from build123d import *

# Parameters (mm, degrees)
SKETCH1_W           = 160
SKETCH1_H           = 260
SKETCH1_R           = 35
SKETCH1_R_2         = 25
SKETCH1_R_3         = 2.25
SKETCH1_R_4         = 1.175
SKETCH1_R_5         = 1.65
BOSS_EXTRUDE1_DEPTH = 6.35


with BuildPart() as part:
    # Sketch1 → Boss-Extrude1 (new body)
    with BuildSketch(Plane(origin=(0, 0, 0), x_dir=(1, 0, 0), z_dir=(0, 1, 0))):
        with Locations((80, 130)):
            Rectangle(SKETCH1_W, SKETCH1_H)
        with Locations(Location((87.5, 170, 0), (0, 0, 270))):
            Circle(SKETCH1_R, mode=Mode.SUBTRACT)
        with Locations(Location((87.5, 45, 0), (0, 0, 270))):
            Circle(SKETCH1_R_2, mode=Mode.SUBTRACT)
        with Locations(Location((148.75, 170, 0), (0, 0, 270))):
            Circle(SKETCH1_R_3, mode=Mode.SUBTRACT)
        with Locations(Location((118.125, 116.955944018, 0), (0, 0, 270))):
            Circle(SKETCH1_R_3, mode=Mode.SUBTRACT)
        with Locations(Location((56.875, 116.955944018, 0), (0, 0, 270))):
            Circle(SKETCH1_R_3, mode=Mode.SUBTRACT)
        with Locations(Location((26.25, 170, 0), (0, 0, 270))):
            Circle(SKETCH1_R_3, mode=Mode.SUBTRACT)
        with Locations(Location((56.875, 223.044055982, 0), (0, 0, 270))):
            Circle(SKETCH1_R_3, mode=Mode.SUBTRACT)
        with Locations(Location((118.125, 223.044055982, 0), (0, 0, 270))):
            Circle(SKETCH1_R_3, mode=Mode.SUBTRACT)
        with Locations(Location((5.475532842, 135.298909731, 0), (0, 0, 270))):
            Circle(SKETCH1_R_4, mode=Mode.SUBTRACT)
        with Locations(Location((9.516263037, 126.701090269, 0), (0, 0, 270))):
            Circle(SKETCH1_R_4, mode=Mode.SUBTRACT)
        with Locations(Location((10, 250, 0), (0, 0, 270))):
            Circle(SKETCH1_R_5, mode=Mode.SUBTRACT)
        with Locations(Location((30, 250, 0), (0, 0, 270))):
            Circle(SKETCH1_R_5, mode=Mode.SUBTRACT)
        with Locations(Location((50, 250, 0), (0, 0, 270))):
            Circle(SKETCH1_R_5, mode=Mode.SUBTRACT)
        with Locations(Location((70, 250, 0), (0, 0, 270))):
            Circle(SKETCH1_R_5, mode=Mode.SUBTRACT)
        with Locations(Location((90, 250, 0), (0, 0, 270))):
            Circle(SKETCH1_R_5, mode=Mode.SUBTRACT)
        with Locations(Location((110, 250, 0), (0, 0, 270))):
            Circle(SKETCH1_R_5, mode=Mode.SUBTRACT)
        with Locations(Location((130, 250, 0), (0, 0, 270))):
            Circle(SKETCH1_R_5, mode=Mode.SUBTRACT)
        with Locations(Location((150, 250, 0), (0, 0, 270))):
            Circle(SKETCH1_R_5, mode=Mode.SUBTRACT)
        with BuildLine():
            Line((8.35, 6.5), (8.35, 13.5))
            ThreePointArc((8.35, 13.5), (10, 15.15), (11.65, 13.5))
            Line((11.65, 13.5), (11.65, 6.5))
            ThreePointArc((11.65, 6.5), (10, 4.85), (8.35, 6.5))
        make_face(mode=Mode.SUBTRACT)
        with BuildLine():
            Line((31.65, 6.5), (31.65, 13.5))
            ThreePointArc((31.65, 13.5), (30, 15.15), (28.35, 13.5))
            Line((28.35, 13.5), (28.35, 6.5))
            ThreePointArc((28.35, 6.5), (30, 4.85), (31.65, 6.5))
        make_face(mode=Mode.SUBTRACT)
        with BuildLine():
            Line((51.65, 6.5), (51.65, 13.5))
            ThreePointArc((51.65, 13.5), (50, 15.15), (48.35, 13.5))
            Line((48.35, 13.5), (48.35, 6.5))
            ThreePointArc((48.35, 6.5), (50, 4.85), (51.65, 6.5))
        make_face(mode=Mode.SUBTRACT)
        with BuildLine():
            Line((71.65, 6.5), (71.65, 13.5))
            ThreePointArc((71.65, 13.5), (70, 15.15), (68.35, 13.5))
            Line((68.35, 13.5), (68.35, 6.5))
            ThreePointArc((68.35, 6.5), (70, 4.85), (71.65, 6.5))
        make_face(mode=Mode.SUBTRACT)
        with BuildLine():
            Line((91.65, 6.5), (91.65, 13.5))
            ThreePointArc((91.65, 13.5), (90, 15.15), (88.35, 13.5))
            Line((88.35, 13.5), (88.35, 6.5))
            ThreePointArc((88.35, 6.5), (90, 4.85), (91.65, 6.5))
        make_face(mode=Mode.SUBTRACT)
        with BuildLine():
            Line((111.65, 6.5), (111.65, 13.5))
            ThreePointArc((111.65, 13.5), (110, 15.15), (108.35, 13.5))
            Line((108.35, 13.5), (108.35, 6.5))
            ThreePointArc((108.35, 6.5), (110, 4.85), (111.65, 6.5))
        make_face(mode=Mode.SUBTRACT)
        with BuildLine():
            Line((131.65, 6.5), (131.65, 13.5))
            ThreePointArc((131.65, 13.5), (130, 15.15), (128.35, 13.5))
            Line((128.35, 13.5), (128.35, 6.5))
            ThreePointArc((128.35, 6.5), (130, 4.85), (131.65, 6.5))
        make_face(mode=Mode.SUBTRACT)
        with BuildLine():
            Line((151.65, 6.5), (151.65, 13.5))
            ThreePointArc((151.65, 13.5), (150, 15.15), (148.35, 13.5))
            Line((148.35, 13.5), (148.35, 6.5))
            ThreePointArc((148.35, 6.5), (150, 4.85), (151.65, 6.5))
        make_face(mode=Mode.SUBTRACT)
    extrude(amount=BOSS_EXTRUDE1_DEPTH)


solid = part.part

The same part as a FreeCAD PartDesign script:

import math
import FreeCAD as App
import Part
import Sketcher
from FreeCAD import Vector
Q = App.Units.Quantity

doc = App.newDocument("Part")
body = doc.addObject("PartDesign::Body", "Body")

# Sketch on XZ plane
sketch1 = body.newObject("Sketcher::SketchObject", "Sketch")
sketch1.AttachmentSupport = (doc.getObject("XZ_Plane"), [""])
sketch1.MapMode = "FlatFace"
sketch1.addGeometry([
    Part.LineSegment(Vector(0, -260, 0), Vector(0, 0, 0)),  # 0
    Part.LineSegment(Vector(0, 0, 0), Vector(160, 0, 0)),  # 1
    Part.LineSegment(Vector(160, 0, 0), Vector(160, -260, 0)),  # 2
    Part.LineSegment(Vector(160, -260, 0), Vector(0, -260, 0)),  # 3
    Part.ArcOfCircle(Part.Circle(Vector(10, -6.5, 0), Vector(0, 0, 1), 1.6), math.radians(0), math.radians(180)),  # 4
    Part.LineSegment(Vector(8.3, -6.5, 0), Vector(8.3, -13.5, 0)),  # 5
    Part.ArcOfCircle(Part.Circle(Vector(10, -13.5, 0), Vector(0, 0, 1), 1.6), math.radians(180), math.radians(360)),  # 6
    Part.LineSegment(Vector(11.7, -13.5, 0), Vector(11.7, -6.5, 0)),  # 7
    Part.LineSegment(Vector(31.6, -13.5, 0), Vector(31.6, -6.5, 0)),  # 8
    Part.ArcOfCircle(Part.Circle(Vector(30, -6.5, 0), Vector(0, 0, 1), 1.6), math.radians(0), math.radians(180)),  # 9
    Part.LineSegment(Vector(28.4, -6.5, 0), Vector(28.4, -13.5, 0)),  # 10
    Part.ArcOfCircle(Part.Circle(Vector(30, -13.5, 0), Vector(0, 0, 1), 1.6), math.radians(180), math.radians(360)),  # 11
    Part.LineSegment(Vector(51.6, -13.5, 0), Vector(51.6, -6.5, 0)),  # 12
    Part.ArcOfCircle(Part.Circle(Vector(50, -6.5, 0), Vector(0, 0, 1), 1.6), math.radians(0), math.radians(180)),  # 13
    Part.LineSegment(Vector(48.4, -6.5, 0), Vector(48.4, -13.5, 0)),  # 14
    Part.ArcOfCircle(Part.Circle(Vector(50, -13.5, 0), Vector(0, 0, 1), 1.6), math.radians(180), math.radians(360)),  # 15
    Part.LineSegment(Vector(71.7, -13.5, 0), Vector(71.7, -6.5, 0)),  # 16
    Part.ArcOfCircle(Part.Circle(Vector(70, -6.5, 0), Vector(0, 0, 1), 1.6), math.radians(0), math.radians(180)),  # 17
    Part.LineSegment(Vector(68.3, -6.5, 0), Vector(68.3, -13.5, 0)),  # 18
    Part.ArcOfCircle(Part.Circle(Vector(70, -13.5, 0), Vector(0, 0, 1), 1.6), math.radians(180), math.radians(360)),  # 19
    Part.Circle(Vector(9.5, -126.7, 0), Vector(0, 0, 1), 1.2),  # 20
    Part.Circle(Vector(56.9, -117, 0), Vector(0, 0, 1), 2.2),  # 21
    Part.LineSegment(Vector(91.7, -13.5, 0), Vector(91.7, -6.5, 0)),  # 22
    Part.ArcOfCircle(Part.Circle(Vector(90, -6.5, 0), Vector(0, 0, 1), 1.6), math.radians(0), math.radians(180)),  # 23
    Part.LineSegment(Vector(88.3, -6.5, 0), Vector(88.3, -13.5, 0)),  # 24
    Part.ArcOfCircle(Part.Circle(Vector(90, -13.5, 0), Vector(0, 0, 1), 1.6), math.radians(180), math.radians(360)),  # 25
    Part.LineSegment(Vector(111.7, -13.5, 0), Vector(111.7, -6.5, 0)),  # 26
    Part.ArcOfCircle(Part.Circle(Vector(110, -6.5, 0), Vector(0, 0, 1), 1.6), math.radians(0), math.radians(180)),  # 27
    Part.LineSegment(Vector(108.3, -6.5, 0), Vector(108.3, -13.5, 0)),  # 28
    Part.ArcOfCircle(Part.Circle(Vector(110, -13.5, 0), Vector(0, 0, 1), 1.6), math.radians(180), math.radians(360)),  # 29
    Part.Circle(Vector(87.5, -45, 0), Vector(0, 0, 1), 25),  # 30
    Part.LineSegment(Vector(131.7, -13.5, 0), Vector(131.7, -6.5, 0)),  # 31
    Part.ArcOfCircle(Part.Circle(Vector(130, -6.5, 0), Vector(0, 0, 1), 1.6), math.radians(0), math.radians(180)),  # 32
    Part.LineSegment(Vector(128.3, -6.5, 0), Vector(128.3, -13.5, 0)),  # 33
    Part.ArcOfCircle(Part.Circle(Vector(130, -13.5, 0), Vector(0, 0, 1), 1.6), math.radians(180), math.radians(360)),  # 34
    Part.LineSegment(Vector(151.7, -13.5, 0), Vector(151.7, -6.5, 0)),  # 35
    Part.ArcOfCircle(Part.Circle(Vector(150, -6.5, 0), Vector(0, 0, 1), 1.6), math.radians(0), math.radians(180)),  # 36
    Part.LineSegment(Vector(148.3, -6.5, 0), Vector(148.3, -13.5, 0)),  # 37
    Part.ArcOfCircle(Part.Circle(Vector(150, -13.5, 0), Vector(0, 0, 1), 1.6), math.radians(180), math.radians(360)),  # 38
    Part.Circle(Vector(118.1, -117, 0), Vector(0, 0, 1), 2.2),  # 39
    Part.Circle(Vector(5.5, -135.3, 0), Vector(0, 0, 1), 1.2),  # 40
    Part.Circle(Vector(26.2, -170, 0), Vector(0, 0, 1), 2.2),  # 41
    Part.Circle(Vector(10, -250, 0), Vector(0, 0, 1), 1.6),  # 42
    Part.Circle(Vector(30, -250, 0), Vector(0, 0, 1), 1.6),  # 43
    Part.Circle(Vector(56.9, -223, 0), Vector(0, 0, 1), 2.2),  # 44
    Part.Circle(Vector(50, -250, 0), Vector(0, 0, 1), 1.6),  # 45
    Part.Circle(Vector(70, -250, 0), Vector(0, 0, 1), 1.6),  # 46
    Part.Circle(Vector(87.5, -170, 0), Vector(0, 0, 1), 35),  # 47
    Part.Circle(Vector(148.8, -170, 0), Vector(0, 0, 1), 2.2),  # 48
    Part.Circle(Vector(90, -250, 0), Vector(0, 0, 1), 1.6),  # 49
    Part.Circle(Vector(110, -250, 0), Vector(0, 0, 1), 1.6),  # 50
    Part.Circle(Vector(118.1, -223, 0), Vector(0, 0, 1), 2.2),  # 51
    Part.Circle(Vector(130, -250, 0), Vector(0, 0, 1), 1.6),  # 52
    Part.Circle(Vector(150, -250, 0), Vector(0, 0, 1), 1.6),  # 53
], False)
sketch1.addConstraint([
    Sketcher.Constraint("Coincident", 0, 2, 1, 1),
    Sketcher.Constraint("Coincident", 1, 2, 2, 1),
    Sketcher.Constraint("Coincident", 2, 2, 3, 1),
    Sketcher.Constraint("Coincident", 3, 2, 0, 1),
    Sketcher.Constraint("Tangent", 4, 2, 5, 1),
    Sketcher.Constraint("Tangent", 5, 2, 6, 1),
    Sketcher.Constraint("Tangent", 6, 2, 7, 1),
    Sketcher.Constraint("Tangent", 7, 2, 4, 1),
    Sketcher.Constraint("Tangent", 8, 2, 9, 1),
    Sketcher.Constraint("Tangent", 9, 2, 10, 1),
    Sketcher.Constraint("Tangent", 10, 2, 11, 1),
    Sketcher.Constraint("Tangent", 11, 2, 8, 1),
    Sketcher.Constraint("Tangent", 12, 2, 13, 1),
    Sketcher.Constraint("Tangent", 13, 2, 14, 1),
    Sketcher.Constraint("Tangent", 14, 2, 15, 1),
    Sketcher.Constraint("Tangent", 15, 2, 12, 1),
    Sketcher.Constraint("Tangent", 16, 2, 17, 1),
    Sketcher.Constraint("Tangent", 17, 2, 18, 1),
    Sketcher.Constraint("Tangent", 18, 2, 19, 1),
    Sketcher.Constraint("Tangent", 19, 2, 16, 1),
    Sketcher.Constraint("Tangent", 22, 2, 23, 1),
    Sketcher.Constraint("Tangent", 23, 2, 24, 1),
    Sketcher.Constraint("Tangent", 24, 2, 25, 1),
    Sketcher.Constraint("Tangent", 25, 2, 22, 1),
    Sketcher.Constraint("Tangent", 26, 2, 27, 1),
    Sketcher.Constraint("Tangent", 27, 2, 28, 1),
    Sketcher.Constraint("Tangent", 28, 2, 29, 1),
    Sketcher.Constraint("Tangent", 29, 2, 26, 1),
    Sketcher.Constraint("Tangent", 31, 2, 32, 1),
    Sketcher.Constraint("Tangent", 32, 2, 33, 1),
    Sketcher.Constraint("Tangent", 33, 2, 34, 1),
    Sketcher.Constraint("Tangent", 34, 2, 31, 1),
    Sketcher.Constraint("Tangent", 35, 2, 36, 1),
    Sketcher.Constraint("Tangent", 36, 2, 37, 1),
    Sketcher.Constraint("Tangent", 37, 2, 38, 1),
    Sketcher.Constraint("Tangent", 38, 2, 35, 1),
    Sketcher.Constraint("Vertical", 0),
    Sketcher.Constraint("Horizontal", 1),
    Sketcher.Constraint("Vertical", 2),
    Sketcher.Constraint("Horizontal", 3),
    Sketcher.Constraint("Vertical", 5),
    Sketcher.Constraint("Vertical", 7),
    Sketcher.Constraint("Vertical", 8),
    Sketcher.Constraint("Vertical", 10),
    Sketcher.Constraint("Vertical", 12),
    Sketcher.Constraint("Vertical", 14),
    Sketcher.Constraint("Vertical", 16),
    Sketcher.Constraint("Vertical", 18),
    Sketcher.Constraint("Vertical", 22),
    Sketcher.Constraint("Vertical", 24),
    Sketcher.Constraint("Vertical", 26),
    Sketcher.Constraint("Vertical", 28),
    Sketcher.Constraint("Vertical", 31),
    Sketcher.Constraint("Vertical", 33),
    Sketcher.Constraint("Vertical", 35),
    Sketcher.Constraint("Vertical", 37),
    Sketcher.Constraint("Coincident", 0, 2, -1, 1),
    Sketcher.Constraint("Equal", 6, 9),
    Sketcher.Constraint("Equal", 11, 13),
    Sketcher.Constraint("Equal", 15, 17),
    Sketcher.Constraint("Equal", 19, 23),
    Sketcher.Constraint("Equal", 25, 27),
    Sketcher.Constraint("Equal", 29, 32),
    Sketcher.Constraint("Equal", 34, 36),
    Sketcher.Constraint("Equal", 21, 39),
    Sketcher.Constraint("Equal", 20, 40),
    Sketcher.Constraint("Equal", 39, 41),
    Sketcher.Constraint("Equal", 38, 42),
    Sketcher.Constraint("Equal", 42, 43),
    Sketcher.Constraint("Equal", 41, 44),
    Sketcher.Constraint("Equal", 43, 45),
    Sketcher.Constraint("Equal", 45, 46),
    Sketcher.Constraint("Equal", 44, 48),
    Sketcher.Constraint("Equal", 46, 49),
    Sketcher.Constraint("Equal", 49, 50),
    Sketcher.Constraint("Equal", 48, 51),
    Sketcher.Constraint("Equal", 50, 52),
    Sketcher.Constraint("Equal", 52, 53),
    Sketcher.Constraint("Horizontal", 4, 3, 9, 3),
    Sketcher.Constraint("Horizontal", 6, 3, 11, 3),
    Sketcher.Constraint("Horizontal", 9, 3, 13, 3),
    Sketcher.Constraint("Horizontal", 11, 3, 15, 3),
    Sketcher.Constraint("Horizontal", 13, 3, 17, 3),
    Sketcher.Constraint("Horizontal", 15, 3, 19, 3),
    Sketcher.Constraint("Horizontal", 17, 3, 23, 3),
    Sketcher.Constraint("Horizontal", 19, 3, 25, 3),
    Sketcher.Constraint("Horizontal", 23, 3, 27, 3),
    Sketcher.Constraint("Horizontal", 25, 3, 29, 3),
    Sketcher.Constraint("Horizontal", 27, 3, 32, 3),
    Sketcher.Constraint("Horizontal", 29, 3, 34, 3),
    Sketcher.Constraint("Horizontal", 32, 3, 36, 3),
    Sketcher.Constraint("Horizontal", 34, 3, 38, 3),
    Sketcher.Constraint("Horizontal", 21, 3, 39, 3),
    Sketcher.Constraint("Horizontal", 42, 3, 43, 3),
    Sketcher.Constraint("Horizontal", 43, 3, 45, 3),
    Sketcher.Constraint("Horizontal", 45, 3, 46, 3),
    Sketcher.Constraint("Horizontal", 41, 3, 47, 3),
    Sketcher.Constraint("Horizontal", 47, 3, 48, 3),
    Sketcher.Constraint("Horizontal", 46, 3, 49, 3),
    Sketcher.Constraint("Horizontal", 49, 3, 50, 3),
    Sketcher.Constraint("Horizontal", 44, 3, 51, 3),
    Sketcher.Constraint("Horizontal", 50, 3, 52, 3),
    Sketcher.Constraint("Horizontal", 52, 3, 53, 3),
    Sketcher.Constraint("Vertical", 6, 3, 42, 3),
    Sketcher.Constraint("Vertical", 11, 3, 43, 3),
    Sketcher.Constraint("Vertical", 21, 3, 44, 3),
    Sketcher.Constraint("Vertical", 15, 3, 45, 3),
    Sketcher.Constraint("Vertical", 19, 3, 46, 3),
    Sketcher.Constraint("Vertical", 30, 3, 47, 3),
    Sketcher.Constraint("Vertical", 25, 3, 49, 3),
    Sketcher.Constraint("Vertical", 29, 3, 50, 3),
    Sketcher.Constraint("Vertical", 39, 3, 51, 3),
    Sketcher.Constraint("Vertical", 34, 3, 52, 3),
    Sketcher.Constraint("Vertical", 38, 3, 53, 3),
    Sketcher.Constraint("Diameter", 30, Q("50 mm")),
    Sketcher.Constraint("Diameter", 47, Q("70 mm")),
    Sketcher.Constraint("Diameter", 21, Q("4.5 mm")),
    Sketcher.Constraint("Diameter", 42, Q("3.3 mm")),
    Sketcher.Constraint("Diameter", 20, Q("2.35 mm")),
    Sketcher.Constraint("DistanceX", 1, 1, 1, 2, Q("160 mm")),
    Sketcher.Constraint("DistanceY", 0, 1, 0, 2, Q("260 mm")),
    Sketcher.Constraint("DistanceY", 5, 2, 5, 1, Q("7 mm")),
    Sketcher.Constraint("DistanceX", -1, 1, 4, 3, Q("10 mm")),
    Sketcher.Constraint("DistanceX", -1, 1, 9, 3, Q("30 mm")),
    Sketcher.Constraint("DistanceX", -1, 1, 13, 3, Q("50 mm")),
    Sketcher.Constraint("DistanceX", -1, 1, 17, 3, Q("70 mm")),
    Sketcher.Constraint("DistanceX", -1, 1, 23, 3, Q("90 mm")),
    Sketcher.Constraint("DistanceX", -1, 1, 27, 3, Q("110 mm")),
    Sketcher.Constraint("DistanceY", 30, 3, -1, 1, Q("45 mm")),
    Sketcher.Constraint("DistanceX", -1, 1, 32, 3, Q("130 mm")),
    Sketcher.Constraint("DistanceX", -1, 1, 36, 3, Q("150 mm")),
    Sketcher.Constraint("DistanceY", 41, 3, -1, 1, Q("170 mm")),
    Sketcher.Constraint("DistanceY", 42, 3, -1, 1, Q("250 mm")),
    Sketcher.Constraint("DistanceY", 4, 3, -1, 1, Q("6.5 mm")),
    Sketcher.Constraint("DistanceX", -1, 1, 30, 3, Q("87.5 mm")),
    Sketcher.Constraint("DistanceX", -1, 1, 41, 3, Q("26.25 mm")),
    Sketcher.Constraint("DistanceX", -1, 1, 48, 3, Q("148.75 mm")),
    Sketcher.Constraint("DistanceX", -1, 1, 21, 3, Q("56.875 mm")),
    Sketcher.Constraint("DistanceX", -1, 1, 39, 3, Q("118.125 mm")),
    Sketcher.Constraint("DistanceY", 20, 3, -1, 1, Q("126.70109 mm")),
    Sketcher.Constraint("DistanceY", 40, 3, -1, 1, Q("135.29891 mm")),
    Sketcher.Constraint("DistanceX", -1, 1, 20, 3, Q("9.516263 mm")),
    Sketcher.Constraint("DistanceY", 21, 3, -1, 1, Q("116.955944 mm")),
    Sketcher.Constraint("DistanceX", -1, 1, 40, 3, Q("5.475533 mm")),
    Sketcher.Constraint("DistanceY", 44, 3, -1, 1, Q("223.044056 mm")),
])
pad1 = body.newObject("PartDesign::Pad", "Pad")
pad1.Profile = sketch1
pad1.Length = 6.35
pad1.Reversed = True

doc.recompute()
